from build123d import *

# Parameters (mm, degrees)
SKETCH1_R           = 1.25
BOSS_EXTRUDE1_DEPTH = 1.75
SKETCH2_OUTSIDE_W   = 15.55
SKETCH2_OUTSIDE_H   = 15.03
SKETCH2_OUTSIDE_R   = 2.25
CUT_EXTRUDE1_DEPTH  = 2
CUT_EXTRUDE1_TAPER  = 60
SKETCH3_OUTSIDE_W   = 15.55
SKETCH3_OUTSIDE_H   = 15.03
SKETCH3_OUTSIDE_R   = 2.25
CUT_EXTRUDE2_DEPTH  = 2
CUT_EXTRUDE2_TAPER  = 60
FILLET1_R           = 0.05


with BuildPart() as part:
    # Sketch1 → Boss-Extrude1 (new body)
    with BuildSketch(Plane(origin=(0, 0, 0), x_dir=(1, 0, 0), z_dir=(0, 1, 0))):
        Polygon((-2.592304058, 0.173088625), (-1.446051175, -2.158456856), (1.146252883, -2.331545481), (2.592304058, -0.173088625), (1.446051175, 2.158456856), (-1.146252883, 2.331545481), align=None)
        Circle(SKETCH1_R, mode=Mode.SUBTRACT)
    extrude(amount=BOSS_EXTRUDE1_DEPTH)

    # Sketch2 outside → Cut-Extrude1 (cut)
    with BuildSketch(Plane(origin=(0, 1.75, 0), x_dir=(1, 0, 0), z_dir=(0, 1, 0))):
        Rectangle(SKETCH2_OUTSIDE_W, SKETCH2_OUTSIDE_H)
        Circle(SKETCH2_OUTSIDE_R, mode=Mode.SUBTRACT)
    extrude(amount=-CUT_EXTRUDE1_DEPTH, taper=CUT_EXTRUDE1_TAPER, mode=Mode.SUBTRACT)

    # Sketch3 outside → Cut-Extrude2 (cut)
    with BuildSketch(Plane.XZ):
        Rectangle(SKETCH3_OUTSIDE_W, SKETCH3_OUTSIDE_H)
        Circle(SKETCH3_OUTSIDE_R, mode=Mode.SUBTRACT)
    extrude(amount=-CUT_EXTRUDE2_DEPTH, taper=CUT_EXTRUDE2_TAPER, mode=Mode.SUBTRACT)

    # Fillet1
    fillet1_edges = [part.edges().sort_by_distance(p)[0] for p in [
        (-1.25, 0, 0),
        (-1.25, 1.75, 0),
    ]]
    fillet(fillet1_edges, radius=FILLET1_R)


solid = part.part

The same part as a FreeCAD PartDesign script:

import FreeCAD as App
import Part
import Sketcher

V = App.Vector
Q = App.Units.Quantity


def edges_at(feature, points):
    """Names of the edges that pass closest to the given points."""
    edges = feature.Shape.Edges
    near = lambda p: min(range(len(edges)), key=lambda i: edges[i].distToShape(Part.Vertex(*p))[0])
    return sorted({f"Edge{near(p) + 1}" for p in points})


def add_polygon(sketch, points):
    """Adds a closed chain of lines whose ends are joined by coincident constraints."""
    first, n = sketch.GeometryCount, len(points)
    for a, b in zip(points, points[1:] + points[:1]):
        sketch.addGeometry(Part.LineSegment(App.Vector(*a, 0), App.Vector(*b, 0)), False)
    for i in range(n):
        sketch.addConstraint(Sketcher.Constraint("Coincident", first + i, 2, first + (i + 1) % n, 1))

doc = App.newDocument("Part")
body = doc.addObject("PartDesign::Body", "Body")

# Sketch on XZ plane
sketch1 = doc.addObject("Sketcher::SketchObject", "Sketch")
body.addObject(sketch1)
sketch1.AttachmentSupport = (doc.XZ_Plane, [""])
sketch1.MapMode = "FlatFace"
add_polygon(sketch1, [(-2.6, -0.2), (-1.4, 2.2), (1.1, 2.3), (2.6, 0.2), (1.4, -2.2), (-1.1, -2.3)])  # lines 0-5
sketch1.addGeometry(Part.Circle(V(0, 0, 0), V(0, 0, 1), 1.2), False)  # 6
sketch1.addConstraint([
    Sketcher.Constraint("Coincident", 6, 3, -1, 1),
    Sketcher.Constraint("Symmetric", 0, 2, 3, 2, -1, 1),
    Sketcher.Constraint("Symmetric", 1, 2, 4, 2, -1, 1),
    Sketcher.Constraint("Symmetric", 2, 2, 5, 2, -1, 1),
    Sketcher.Constraint("Equal", 0, 1),
    Sketcher.Constraint("Equal", 1, 2),
    Sketcher.Constraint("Diameter", 6, Q("2.5 mm")),
    Sketcher.Constraint("DistanceX", 1, 2, 3, 2, Q("0.299798 mm")),
    Sketcher.Constraint("DistanceX", 0, 2, -1, 1, Q("1.446051 mm")),
    Sketcher.Constraint("DistanceY", -1, 1, 2, 2, Q("0.173089 mm")),
    Sketcher.Constraint("DistanceY", 0, 2, 1, 2, Q("0.173089 mm")),
])
pad1 = doc.addObject("PartDesign::Pad", "Pad")
body.addObject(pad1)
pad1.Profile = sketch1
pad1.Length = 1.75
pad1.Reversed = True

# Sketch on XZ plane
sketch2 = doc.addObject("Sketcher::SketchObject", "Sketch001")
body.addObject(sketch2)
sketch2.AttachmentSupport = (doc.XZ_Plane, [""])
sketch2.MapMode = "FlatFace"
sketch2.AttachmentOffset = App.Placement(V(0, 0, -1.75), App.Rotation())
add_polygon(sketch2, [(-7.8, -7.5), (-7.8, 7.5), (7.8, 7.5), (7.8, -7.5)])  # lines 0-3
sketch2.addGeometry(Part.Circle(V(0, 0, 0), V(0, 0, 1), 2.2), False)  # 4
sketch2.addConstraint([
    Sketcher.Constraint("Vertical", 0),
    Sketcher.Constraint("Horizontal", 1),
    Sketcher.Constraint("Vertical", 2),
    Sketcher.Constraint("Horizontal", 3),
    Sketcher.Constraint("Coincident", 4, 3, -1, 1),
    Sketcher.Constraint("Symmetric", 0, 2, 2, 2, -1, 1),
    Sketcher.Constraint("Diameter", 4, Q("4.5 mm")),
    Sketcher.Constraint("DistanceX", 1, 1, 1, 2, Q("15.55 mm")),
    Sketcher.Constraint("DistanceY", 0, 1, 0, 2, Q("15.03 mm")),
])
pocket1 = doc.addObject("PartDesign::Pocket", "Pocket")
body.addObject(pocket1)
pocket1.Profile = sketch2
pocket1.Length = 2
pocket1.Reversed = True
pocket1.TaperAngle = 60

# Sketch on XZ plane
sketch3 = doc.addObject("Sketcher::SketchObject", "Sketch002")
body.addObject(sketch3)
sketch3.AttachmentSupport = (doc.XZ_Plane, [""])
sketch3.MapMode = "FlatFace"
add_polygon(sketch3, [(-7.8, 7.5), (-7.8, -7.5), (7.8, -7.5), (7.8, 7.5)])  # lines 0-3
sketch3.addGeometry(Part.Circle(V(0, 0, 0), V(0, 0, 1), 2.2), False)  # 4
sketch3.addConstraint([
    Sketcher.Constraint("Vertical", 0),
    Sketcher.Constraint("Horizontal", 1),
    Sketcher.Constraint("Vertical", 2),
    Sketcher.Constraint("Horizontal", 3),
    Sketcher.Constraint("Coincident", 4, 3, -1, 1),
    Sketcher.Constraint("Symmetric", 0, 2, 2, 2, -1, 1),
    Sketcher.Constraint("Diameter", 4, Q("4.5 mm")),
    Sketcher.Constraint("DistanceX", 1, 1, 1, 2, Q("15.55 mm")),
    Sketcher.Constraint("DistanceY", 0, 2, 0, 1, Q("15.03 mm")),
])
pocket2 = doc.addObject("PartDesign::Pocket", "Pocket001")
body.addObject(pocket2)
pocket2.Profile = sketch3
pocket2.Length = 2
pocket2.TaperAngle = 60
doc.recompute()

fillet = doc.addObject("PartDesign::Fillet", "Fillet")
body.addObject(fillet)
fillet.Base = (pocket2, edges_at(pocket2, [(-1.25, 0, 0), (-1.25, 1.75, 0)]))
fillet.Radius = 0.05

doc.recompute()
